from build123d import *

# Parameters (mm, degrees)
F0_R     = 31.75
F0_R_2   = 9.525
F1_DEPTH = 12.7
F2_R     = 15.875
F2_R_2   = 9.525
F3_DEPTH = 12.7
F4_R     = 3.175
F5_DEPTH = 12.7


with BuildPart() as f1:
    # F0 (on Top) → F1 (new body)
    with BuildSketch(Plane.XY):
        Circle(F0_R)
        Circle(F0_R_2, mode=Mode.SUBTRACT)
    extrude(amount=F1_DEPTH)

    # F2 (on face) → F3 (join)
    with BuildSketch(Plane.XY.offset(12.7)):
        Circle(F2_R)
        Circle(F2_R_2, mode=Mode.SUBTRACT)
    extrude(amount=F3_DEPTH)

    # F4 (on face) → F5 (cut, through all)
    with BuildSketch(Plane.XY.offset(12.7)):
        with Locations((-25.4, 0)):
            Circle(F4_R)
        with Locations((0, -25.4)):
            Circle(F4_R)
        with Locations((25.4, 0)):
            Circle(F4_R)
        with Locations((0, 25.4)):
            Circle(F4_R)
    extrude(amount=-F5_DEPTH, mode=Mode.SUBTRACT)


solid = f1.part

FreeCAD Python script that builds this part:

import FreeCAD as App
import Part
import Sketcher

V = App.Vector
Q = App.Units.Quantity

doc = App.newDocument("Part")
params = doc.addObject("Spreadsheet::Sheet", "Params")
for row, (alias, value) in enumerate([
    ("sketch1_diameter", "2.5 in"),
    ("sketch1_diameter2", "0.75 in"),
    ("pad1_length", "0.5 in"),
    ("sketch2_diameter", "1.25 in"),
    ("sketch2_diameter2", "0.75 in"),
    ("pad2_length", "0.5 in"),
    ("sketch3_diameter", "0.25 in"),
], start=1):
    params.set(f"A{row}", alias)
    params.set(f"B{row}", "=" + value)
    params.setAlias(f"B{row}", alias)

body = doc.addObject("PartDesign::Body", "Body")

# Sketch on XY plane
sketch1 = body.newObject("Sketcher::SketchObject", "Sketch")
sketch1.AttachmentSupport = (doc.getObject("XY_Plane"), [""])
sketch1.MapMode = "FlatFace"
sketch1.addGeometry([
    Part.Circle(V(0, 0, 0), V(0, 0, 1), 31.75),
    Part.Circle(V(0, 0, 0), V(0, 0, 1), 9.525),
], False)
sketch1.addConstraint([
    Sketcher.Constraint("Coincident", 0, 3, -1, 1),
    Sketcher.Constraint("Coincident", 1, 3, -1, 1),
    Sketcher.Constraint("Diameter", 0, Q("2.5 in")),
    Sketcher.Constraint("Diameter", 1, Q("0.75 in")),
])
sketch1.setExpression("Constraints[2]", "Params.sketch1_diameter")
sketch1.setExpression("Constraints[3]", "Params.sketch1_diameter2")
pad1 = body.newObject("PartDesign::Pad", "Pad")
pad1.Profile = sketch1
pad1.setExpression("Length", "Params.pad1_length")

# Sketch on XY plane
sketch2 = body.newObject("Sketcher::SketchObject", "Sketch001")
sketch2.AttachmentSupport = (doc.getObject("XY_Plane"), [""])
sketch2.MapMode = "FlatFace"
sketch2.AttachmentOffset = App.Placement(V(0, 0, 0.5 * 25.4), App.Rotation())
sketch2.addGeometry([
    Part.Circle(V(0, 0, 0), V(0, 0, 1), 15.875),
    Part.Circle(V(0, 0, 0), V(0, 0, 1), 9.525),
], False)
sketch2.addConstraint([
    Sketcher.Constraint("Coincident", 0, 3, -1, 1),
    Sketcher.Constraint("Coincident", 1, 3, -1, 1),
    Sketcher.Constraint("Diameter", 0, Q("1.25 in")),
    Sketcher.Constraint("Diameter", 1, Q("0.75 in")),
])
sketch2.setExpression("Constraints[2]", "Params.sketch2_diameter")
sketch2.setExpression("Constraints[3]", "Params.sketch2_diameter2")
pad2 = body.newObject("PartDesign::Pad", "Pad001")
pad2.Profile = sketch2
pad2.setExpression("Length", "Params.pad2_length")

# Sketch on XY plane
sketch3 = body.newObject("Sketcher::SketchObject", "Sketch002")
sketch3.AttachmentSupport = (doc.getObject("XY_Plane"), [""])
sketch3.MapMode = "FlatFace"
sketch3.AttachmentOffset = App.Placement(V(0, 0, 0.5 * 25.4), App.Rotation())
sketch3.addGeometry([
    Part.Circle(V(-25.4, 0, 0), V(0, 0, 1), 3.175),
    Part.Circle(V(0, -25.4, 0), V(0, 0, 1), 3.175),
    Part.Circle(V(25.4, 0, 0), V(0, 0, 1), 3.175),
    Part.Circle(V(0, 25.4, 0), V(0, 0, 1), 3.175),
], False)
sketch3.addConstraint([
    Sketcher.Constraint("Equal", 0, 1),
    Sketcher.Constraint("Equal", 1, 2),
    Sketcher.Constraint("Equal", 2, 3),
    Sketcher.Constraint("Symmetric", 0, 3, 2, 3, -1, 1),
    Sketcher.Constraint("Symmetric", 1, 3, 3, 3, -1, 1),
    Sketcher.Constraint("PointOnObject", 0, 3, -1),
    Sketcher.Constraint("PointOnObject", 1, 3, -2),
    Sketcher.Constraint("Diameter", 0, Q("0.25 in")),
    Sketcher.Constraint("DistanceX", 0, 3, -1, 1, Q("1 in")),
    Sketcher.Constraint("DistanceY", 1, 3, -1, 1, Q("1 in")),
])
sketch3.setExpression("Constraints[7]", "Params.sketch3_diameter")
pocket1 = body.newObject("PartDesign::Pocket", "Pocket")
pocket1.Profile = sketch3
pocket1.Type = "ThroughAll"

doc.recompute()
